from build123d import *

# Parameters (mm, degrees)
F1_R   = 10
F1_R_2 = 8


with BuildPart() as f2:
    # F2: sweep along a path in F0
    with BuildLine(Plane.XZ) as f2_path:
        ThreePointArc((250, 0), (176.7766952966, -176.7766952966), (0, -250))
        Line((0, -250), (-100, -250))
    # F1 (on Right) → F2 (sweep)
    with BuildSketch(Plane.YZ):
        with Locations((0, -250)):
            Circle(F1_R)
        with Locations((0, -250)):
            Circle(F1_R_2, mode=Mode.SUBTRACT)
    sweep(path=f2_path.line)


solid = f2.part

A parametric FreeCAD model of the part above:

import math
import FreeCAD as App
import Part
import Sketcher
from FreeCAD import Vector
Q = App.Units.Quantity

doc = App.newDocument("Part")
params = doc.addObject("Spreadsheet::Sheet", "Params")
for row, (alias, value) in enumerate([
    ("sketch1_diameter", "20 mm"),
    ("sketch1_diameter2", "16 mm"),
    ("sketch2_radius", "250 mm"),
    ("sketch2_width", "100 mm"),
], start=1):
    params.set(f"A{row}", alias)
    params.set(f"B{row}", "=" + value)
    params.setAlias(f"B{row}", alias)

body = doc.addObject("PartDesign::Body", "Body")

# Sketch on YZ plane
sketch1 = doc.addObject("Sketcher::SketchObject", "Sketch")
body.addObject(sketch1)
sketch1.AttachmentSupport = (doc.YZ_Plane, [""])
sketch1.MapMode = "FlatFace"
sketch1.addGeometry(Part.Circle(Vector(0, -250, 0), Vector(0, 0, 1), 10), False)
sketch1.addGeometry(Part.Circle(Vector(0, -250, 0), Vector(0, 0, 1), 8), False)
sketch1.addConstraint(Sketcher.Constraint("Coincident", 1, 3, 0, 3))
sketch1.addConstraint(Sketcher.Constraint("PointOnObject", 0, 3, -2))
sketch1.addConstraint(Sketcher.Constraint("Diameter", 0, Q("20 mm")))
sketch1.addConstraint(Sketcher.Constraint("Diameter", 1, Q("16 mm")))
sketch1.addConstraint(Sketcher.Constraint("DistanceY", 0, 3, -1, 1, Q("250 mm")))
sketch1.setExpression("Constraints[2]", "Params.sketch1_diameter")
sketch1.setExpression("Constraints[3]", "Params.sketch1_diameter2")

# Sketch on XZ plane
sketch2 = doc.addObject("Sketcher::SketchObject", "Sketch001")
body.addObject(sketch2)
sketch2.AttachmentSupport = (doc.XZ_Plane, [""])
sketch2.MapMode = "FlatFace"
sketch2.addGeometry(Part.ArcOfCircle(Part.Circle(Vector(0, 0, 0), Vector(0, 0, 1), 250), math.radians(-90), math.radians(0)), False)
sketch2.addGeometry(Part.LineSegment(Vector(0, -250, 0), Vector(-100, -250, 0)), False)
sketch2.addConstraint(Sketcher.Constraint("Tangent", 0, 1, 1, 1))
sketch2.addConstraint(Sketcher.Constraint("Horizontal", 1))
sketch2.addConstraint(Sketcher.Constraint("Coincident", 0, 3, -1, 1))
sketch2.addConstraint(Sketcher.Constraint("PointOnObject", 0, 2, -1))
sketch2.addConstraint(Sketcher.Constraint("Radius", 0, Q("250 mm")))
sketch2.addConstraint(Sketcher.Constraint("DistanceX", 1, 2, 1, 1, Q("100 mm")))
sketch2.setExpression("Constraints[4]", "Params.sketch2_radius")
sketch2.setExpression("Constraints[5]", "Params.sketch2_width")
doc.recompute()

additivepipe = doc.addObject("PartDesign::AdditivePipe", "AdditivePipe")
body.addObject(additivepipe)
additivepipe.Profile = sketch1
additivepipe.Spine = (sketch2, ["Edge1", "Edge2"])

doc.recompute()
